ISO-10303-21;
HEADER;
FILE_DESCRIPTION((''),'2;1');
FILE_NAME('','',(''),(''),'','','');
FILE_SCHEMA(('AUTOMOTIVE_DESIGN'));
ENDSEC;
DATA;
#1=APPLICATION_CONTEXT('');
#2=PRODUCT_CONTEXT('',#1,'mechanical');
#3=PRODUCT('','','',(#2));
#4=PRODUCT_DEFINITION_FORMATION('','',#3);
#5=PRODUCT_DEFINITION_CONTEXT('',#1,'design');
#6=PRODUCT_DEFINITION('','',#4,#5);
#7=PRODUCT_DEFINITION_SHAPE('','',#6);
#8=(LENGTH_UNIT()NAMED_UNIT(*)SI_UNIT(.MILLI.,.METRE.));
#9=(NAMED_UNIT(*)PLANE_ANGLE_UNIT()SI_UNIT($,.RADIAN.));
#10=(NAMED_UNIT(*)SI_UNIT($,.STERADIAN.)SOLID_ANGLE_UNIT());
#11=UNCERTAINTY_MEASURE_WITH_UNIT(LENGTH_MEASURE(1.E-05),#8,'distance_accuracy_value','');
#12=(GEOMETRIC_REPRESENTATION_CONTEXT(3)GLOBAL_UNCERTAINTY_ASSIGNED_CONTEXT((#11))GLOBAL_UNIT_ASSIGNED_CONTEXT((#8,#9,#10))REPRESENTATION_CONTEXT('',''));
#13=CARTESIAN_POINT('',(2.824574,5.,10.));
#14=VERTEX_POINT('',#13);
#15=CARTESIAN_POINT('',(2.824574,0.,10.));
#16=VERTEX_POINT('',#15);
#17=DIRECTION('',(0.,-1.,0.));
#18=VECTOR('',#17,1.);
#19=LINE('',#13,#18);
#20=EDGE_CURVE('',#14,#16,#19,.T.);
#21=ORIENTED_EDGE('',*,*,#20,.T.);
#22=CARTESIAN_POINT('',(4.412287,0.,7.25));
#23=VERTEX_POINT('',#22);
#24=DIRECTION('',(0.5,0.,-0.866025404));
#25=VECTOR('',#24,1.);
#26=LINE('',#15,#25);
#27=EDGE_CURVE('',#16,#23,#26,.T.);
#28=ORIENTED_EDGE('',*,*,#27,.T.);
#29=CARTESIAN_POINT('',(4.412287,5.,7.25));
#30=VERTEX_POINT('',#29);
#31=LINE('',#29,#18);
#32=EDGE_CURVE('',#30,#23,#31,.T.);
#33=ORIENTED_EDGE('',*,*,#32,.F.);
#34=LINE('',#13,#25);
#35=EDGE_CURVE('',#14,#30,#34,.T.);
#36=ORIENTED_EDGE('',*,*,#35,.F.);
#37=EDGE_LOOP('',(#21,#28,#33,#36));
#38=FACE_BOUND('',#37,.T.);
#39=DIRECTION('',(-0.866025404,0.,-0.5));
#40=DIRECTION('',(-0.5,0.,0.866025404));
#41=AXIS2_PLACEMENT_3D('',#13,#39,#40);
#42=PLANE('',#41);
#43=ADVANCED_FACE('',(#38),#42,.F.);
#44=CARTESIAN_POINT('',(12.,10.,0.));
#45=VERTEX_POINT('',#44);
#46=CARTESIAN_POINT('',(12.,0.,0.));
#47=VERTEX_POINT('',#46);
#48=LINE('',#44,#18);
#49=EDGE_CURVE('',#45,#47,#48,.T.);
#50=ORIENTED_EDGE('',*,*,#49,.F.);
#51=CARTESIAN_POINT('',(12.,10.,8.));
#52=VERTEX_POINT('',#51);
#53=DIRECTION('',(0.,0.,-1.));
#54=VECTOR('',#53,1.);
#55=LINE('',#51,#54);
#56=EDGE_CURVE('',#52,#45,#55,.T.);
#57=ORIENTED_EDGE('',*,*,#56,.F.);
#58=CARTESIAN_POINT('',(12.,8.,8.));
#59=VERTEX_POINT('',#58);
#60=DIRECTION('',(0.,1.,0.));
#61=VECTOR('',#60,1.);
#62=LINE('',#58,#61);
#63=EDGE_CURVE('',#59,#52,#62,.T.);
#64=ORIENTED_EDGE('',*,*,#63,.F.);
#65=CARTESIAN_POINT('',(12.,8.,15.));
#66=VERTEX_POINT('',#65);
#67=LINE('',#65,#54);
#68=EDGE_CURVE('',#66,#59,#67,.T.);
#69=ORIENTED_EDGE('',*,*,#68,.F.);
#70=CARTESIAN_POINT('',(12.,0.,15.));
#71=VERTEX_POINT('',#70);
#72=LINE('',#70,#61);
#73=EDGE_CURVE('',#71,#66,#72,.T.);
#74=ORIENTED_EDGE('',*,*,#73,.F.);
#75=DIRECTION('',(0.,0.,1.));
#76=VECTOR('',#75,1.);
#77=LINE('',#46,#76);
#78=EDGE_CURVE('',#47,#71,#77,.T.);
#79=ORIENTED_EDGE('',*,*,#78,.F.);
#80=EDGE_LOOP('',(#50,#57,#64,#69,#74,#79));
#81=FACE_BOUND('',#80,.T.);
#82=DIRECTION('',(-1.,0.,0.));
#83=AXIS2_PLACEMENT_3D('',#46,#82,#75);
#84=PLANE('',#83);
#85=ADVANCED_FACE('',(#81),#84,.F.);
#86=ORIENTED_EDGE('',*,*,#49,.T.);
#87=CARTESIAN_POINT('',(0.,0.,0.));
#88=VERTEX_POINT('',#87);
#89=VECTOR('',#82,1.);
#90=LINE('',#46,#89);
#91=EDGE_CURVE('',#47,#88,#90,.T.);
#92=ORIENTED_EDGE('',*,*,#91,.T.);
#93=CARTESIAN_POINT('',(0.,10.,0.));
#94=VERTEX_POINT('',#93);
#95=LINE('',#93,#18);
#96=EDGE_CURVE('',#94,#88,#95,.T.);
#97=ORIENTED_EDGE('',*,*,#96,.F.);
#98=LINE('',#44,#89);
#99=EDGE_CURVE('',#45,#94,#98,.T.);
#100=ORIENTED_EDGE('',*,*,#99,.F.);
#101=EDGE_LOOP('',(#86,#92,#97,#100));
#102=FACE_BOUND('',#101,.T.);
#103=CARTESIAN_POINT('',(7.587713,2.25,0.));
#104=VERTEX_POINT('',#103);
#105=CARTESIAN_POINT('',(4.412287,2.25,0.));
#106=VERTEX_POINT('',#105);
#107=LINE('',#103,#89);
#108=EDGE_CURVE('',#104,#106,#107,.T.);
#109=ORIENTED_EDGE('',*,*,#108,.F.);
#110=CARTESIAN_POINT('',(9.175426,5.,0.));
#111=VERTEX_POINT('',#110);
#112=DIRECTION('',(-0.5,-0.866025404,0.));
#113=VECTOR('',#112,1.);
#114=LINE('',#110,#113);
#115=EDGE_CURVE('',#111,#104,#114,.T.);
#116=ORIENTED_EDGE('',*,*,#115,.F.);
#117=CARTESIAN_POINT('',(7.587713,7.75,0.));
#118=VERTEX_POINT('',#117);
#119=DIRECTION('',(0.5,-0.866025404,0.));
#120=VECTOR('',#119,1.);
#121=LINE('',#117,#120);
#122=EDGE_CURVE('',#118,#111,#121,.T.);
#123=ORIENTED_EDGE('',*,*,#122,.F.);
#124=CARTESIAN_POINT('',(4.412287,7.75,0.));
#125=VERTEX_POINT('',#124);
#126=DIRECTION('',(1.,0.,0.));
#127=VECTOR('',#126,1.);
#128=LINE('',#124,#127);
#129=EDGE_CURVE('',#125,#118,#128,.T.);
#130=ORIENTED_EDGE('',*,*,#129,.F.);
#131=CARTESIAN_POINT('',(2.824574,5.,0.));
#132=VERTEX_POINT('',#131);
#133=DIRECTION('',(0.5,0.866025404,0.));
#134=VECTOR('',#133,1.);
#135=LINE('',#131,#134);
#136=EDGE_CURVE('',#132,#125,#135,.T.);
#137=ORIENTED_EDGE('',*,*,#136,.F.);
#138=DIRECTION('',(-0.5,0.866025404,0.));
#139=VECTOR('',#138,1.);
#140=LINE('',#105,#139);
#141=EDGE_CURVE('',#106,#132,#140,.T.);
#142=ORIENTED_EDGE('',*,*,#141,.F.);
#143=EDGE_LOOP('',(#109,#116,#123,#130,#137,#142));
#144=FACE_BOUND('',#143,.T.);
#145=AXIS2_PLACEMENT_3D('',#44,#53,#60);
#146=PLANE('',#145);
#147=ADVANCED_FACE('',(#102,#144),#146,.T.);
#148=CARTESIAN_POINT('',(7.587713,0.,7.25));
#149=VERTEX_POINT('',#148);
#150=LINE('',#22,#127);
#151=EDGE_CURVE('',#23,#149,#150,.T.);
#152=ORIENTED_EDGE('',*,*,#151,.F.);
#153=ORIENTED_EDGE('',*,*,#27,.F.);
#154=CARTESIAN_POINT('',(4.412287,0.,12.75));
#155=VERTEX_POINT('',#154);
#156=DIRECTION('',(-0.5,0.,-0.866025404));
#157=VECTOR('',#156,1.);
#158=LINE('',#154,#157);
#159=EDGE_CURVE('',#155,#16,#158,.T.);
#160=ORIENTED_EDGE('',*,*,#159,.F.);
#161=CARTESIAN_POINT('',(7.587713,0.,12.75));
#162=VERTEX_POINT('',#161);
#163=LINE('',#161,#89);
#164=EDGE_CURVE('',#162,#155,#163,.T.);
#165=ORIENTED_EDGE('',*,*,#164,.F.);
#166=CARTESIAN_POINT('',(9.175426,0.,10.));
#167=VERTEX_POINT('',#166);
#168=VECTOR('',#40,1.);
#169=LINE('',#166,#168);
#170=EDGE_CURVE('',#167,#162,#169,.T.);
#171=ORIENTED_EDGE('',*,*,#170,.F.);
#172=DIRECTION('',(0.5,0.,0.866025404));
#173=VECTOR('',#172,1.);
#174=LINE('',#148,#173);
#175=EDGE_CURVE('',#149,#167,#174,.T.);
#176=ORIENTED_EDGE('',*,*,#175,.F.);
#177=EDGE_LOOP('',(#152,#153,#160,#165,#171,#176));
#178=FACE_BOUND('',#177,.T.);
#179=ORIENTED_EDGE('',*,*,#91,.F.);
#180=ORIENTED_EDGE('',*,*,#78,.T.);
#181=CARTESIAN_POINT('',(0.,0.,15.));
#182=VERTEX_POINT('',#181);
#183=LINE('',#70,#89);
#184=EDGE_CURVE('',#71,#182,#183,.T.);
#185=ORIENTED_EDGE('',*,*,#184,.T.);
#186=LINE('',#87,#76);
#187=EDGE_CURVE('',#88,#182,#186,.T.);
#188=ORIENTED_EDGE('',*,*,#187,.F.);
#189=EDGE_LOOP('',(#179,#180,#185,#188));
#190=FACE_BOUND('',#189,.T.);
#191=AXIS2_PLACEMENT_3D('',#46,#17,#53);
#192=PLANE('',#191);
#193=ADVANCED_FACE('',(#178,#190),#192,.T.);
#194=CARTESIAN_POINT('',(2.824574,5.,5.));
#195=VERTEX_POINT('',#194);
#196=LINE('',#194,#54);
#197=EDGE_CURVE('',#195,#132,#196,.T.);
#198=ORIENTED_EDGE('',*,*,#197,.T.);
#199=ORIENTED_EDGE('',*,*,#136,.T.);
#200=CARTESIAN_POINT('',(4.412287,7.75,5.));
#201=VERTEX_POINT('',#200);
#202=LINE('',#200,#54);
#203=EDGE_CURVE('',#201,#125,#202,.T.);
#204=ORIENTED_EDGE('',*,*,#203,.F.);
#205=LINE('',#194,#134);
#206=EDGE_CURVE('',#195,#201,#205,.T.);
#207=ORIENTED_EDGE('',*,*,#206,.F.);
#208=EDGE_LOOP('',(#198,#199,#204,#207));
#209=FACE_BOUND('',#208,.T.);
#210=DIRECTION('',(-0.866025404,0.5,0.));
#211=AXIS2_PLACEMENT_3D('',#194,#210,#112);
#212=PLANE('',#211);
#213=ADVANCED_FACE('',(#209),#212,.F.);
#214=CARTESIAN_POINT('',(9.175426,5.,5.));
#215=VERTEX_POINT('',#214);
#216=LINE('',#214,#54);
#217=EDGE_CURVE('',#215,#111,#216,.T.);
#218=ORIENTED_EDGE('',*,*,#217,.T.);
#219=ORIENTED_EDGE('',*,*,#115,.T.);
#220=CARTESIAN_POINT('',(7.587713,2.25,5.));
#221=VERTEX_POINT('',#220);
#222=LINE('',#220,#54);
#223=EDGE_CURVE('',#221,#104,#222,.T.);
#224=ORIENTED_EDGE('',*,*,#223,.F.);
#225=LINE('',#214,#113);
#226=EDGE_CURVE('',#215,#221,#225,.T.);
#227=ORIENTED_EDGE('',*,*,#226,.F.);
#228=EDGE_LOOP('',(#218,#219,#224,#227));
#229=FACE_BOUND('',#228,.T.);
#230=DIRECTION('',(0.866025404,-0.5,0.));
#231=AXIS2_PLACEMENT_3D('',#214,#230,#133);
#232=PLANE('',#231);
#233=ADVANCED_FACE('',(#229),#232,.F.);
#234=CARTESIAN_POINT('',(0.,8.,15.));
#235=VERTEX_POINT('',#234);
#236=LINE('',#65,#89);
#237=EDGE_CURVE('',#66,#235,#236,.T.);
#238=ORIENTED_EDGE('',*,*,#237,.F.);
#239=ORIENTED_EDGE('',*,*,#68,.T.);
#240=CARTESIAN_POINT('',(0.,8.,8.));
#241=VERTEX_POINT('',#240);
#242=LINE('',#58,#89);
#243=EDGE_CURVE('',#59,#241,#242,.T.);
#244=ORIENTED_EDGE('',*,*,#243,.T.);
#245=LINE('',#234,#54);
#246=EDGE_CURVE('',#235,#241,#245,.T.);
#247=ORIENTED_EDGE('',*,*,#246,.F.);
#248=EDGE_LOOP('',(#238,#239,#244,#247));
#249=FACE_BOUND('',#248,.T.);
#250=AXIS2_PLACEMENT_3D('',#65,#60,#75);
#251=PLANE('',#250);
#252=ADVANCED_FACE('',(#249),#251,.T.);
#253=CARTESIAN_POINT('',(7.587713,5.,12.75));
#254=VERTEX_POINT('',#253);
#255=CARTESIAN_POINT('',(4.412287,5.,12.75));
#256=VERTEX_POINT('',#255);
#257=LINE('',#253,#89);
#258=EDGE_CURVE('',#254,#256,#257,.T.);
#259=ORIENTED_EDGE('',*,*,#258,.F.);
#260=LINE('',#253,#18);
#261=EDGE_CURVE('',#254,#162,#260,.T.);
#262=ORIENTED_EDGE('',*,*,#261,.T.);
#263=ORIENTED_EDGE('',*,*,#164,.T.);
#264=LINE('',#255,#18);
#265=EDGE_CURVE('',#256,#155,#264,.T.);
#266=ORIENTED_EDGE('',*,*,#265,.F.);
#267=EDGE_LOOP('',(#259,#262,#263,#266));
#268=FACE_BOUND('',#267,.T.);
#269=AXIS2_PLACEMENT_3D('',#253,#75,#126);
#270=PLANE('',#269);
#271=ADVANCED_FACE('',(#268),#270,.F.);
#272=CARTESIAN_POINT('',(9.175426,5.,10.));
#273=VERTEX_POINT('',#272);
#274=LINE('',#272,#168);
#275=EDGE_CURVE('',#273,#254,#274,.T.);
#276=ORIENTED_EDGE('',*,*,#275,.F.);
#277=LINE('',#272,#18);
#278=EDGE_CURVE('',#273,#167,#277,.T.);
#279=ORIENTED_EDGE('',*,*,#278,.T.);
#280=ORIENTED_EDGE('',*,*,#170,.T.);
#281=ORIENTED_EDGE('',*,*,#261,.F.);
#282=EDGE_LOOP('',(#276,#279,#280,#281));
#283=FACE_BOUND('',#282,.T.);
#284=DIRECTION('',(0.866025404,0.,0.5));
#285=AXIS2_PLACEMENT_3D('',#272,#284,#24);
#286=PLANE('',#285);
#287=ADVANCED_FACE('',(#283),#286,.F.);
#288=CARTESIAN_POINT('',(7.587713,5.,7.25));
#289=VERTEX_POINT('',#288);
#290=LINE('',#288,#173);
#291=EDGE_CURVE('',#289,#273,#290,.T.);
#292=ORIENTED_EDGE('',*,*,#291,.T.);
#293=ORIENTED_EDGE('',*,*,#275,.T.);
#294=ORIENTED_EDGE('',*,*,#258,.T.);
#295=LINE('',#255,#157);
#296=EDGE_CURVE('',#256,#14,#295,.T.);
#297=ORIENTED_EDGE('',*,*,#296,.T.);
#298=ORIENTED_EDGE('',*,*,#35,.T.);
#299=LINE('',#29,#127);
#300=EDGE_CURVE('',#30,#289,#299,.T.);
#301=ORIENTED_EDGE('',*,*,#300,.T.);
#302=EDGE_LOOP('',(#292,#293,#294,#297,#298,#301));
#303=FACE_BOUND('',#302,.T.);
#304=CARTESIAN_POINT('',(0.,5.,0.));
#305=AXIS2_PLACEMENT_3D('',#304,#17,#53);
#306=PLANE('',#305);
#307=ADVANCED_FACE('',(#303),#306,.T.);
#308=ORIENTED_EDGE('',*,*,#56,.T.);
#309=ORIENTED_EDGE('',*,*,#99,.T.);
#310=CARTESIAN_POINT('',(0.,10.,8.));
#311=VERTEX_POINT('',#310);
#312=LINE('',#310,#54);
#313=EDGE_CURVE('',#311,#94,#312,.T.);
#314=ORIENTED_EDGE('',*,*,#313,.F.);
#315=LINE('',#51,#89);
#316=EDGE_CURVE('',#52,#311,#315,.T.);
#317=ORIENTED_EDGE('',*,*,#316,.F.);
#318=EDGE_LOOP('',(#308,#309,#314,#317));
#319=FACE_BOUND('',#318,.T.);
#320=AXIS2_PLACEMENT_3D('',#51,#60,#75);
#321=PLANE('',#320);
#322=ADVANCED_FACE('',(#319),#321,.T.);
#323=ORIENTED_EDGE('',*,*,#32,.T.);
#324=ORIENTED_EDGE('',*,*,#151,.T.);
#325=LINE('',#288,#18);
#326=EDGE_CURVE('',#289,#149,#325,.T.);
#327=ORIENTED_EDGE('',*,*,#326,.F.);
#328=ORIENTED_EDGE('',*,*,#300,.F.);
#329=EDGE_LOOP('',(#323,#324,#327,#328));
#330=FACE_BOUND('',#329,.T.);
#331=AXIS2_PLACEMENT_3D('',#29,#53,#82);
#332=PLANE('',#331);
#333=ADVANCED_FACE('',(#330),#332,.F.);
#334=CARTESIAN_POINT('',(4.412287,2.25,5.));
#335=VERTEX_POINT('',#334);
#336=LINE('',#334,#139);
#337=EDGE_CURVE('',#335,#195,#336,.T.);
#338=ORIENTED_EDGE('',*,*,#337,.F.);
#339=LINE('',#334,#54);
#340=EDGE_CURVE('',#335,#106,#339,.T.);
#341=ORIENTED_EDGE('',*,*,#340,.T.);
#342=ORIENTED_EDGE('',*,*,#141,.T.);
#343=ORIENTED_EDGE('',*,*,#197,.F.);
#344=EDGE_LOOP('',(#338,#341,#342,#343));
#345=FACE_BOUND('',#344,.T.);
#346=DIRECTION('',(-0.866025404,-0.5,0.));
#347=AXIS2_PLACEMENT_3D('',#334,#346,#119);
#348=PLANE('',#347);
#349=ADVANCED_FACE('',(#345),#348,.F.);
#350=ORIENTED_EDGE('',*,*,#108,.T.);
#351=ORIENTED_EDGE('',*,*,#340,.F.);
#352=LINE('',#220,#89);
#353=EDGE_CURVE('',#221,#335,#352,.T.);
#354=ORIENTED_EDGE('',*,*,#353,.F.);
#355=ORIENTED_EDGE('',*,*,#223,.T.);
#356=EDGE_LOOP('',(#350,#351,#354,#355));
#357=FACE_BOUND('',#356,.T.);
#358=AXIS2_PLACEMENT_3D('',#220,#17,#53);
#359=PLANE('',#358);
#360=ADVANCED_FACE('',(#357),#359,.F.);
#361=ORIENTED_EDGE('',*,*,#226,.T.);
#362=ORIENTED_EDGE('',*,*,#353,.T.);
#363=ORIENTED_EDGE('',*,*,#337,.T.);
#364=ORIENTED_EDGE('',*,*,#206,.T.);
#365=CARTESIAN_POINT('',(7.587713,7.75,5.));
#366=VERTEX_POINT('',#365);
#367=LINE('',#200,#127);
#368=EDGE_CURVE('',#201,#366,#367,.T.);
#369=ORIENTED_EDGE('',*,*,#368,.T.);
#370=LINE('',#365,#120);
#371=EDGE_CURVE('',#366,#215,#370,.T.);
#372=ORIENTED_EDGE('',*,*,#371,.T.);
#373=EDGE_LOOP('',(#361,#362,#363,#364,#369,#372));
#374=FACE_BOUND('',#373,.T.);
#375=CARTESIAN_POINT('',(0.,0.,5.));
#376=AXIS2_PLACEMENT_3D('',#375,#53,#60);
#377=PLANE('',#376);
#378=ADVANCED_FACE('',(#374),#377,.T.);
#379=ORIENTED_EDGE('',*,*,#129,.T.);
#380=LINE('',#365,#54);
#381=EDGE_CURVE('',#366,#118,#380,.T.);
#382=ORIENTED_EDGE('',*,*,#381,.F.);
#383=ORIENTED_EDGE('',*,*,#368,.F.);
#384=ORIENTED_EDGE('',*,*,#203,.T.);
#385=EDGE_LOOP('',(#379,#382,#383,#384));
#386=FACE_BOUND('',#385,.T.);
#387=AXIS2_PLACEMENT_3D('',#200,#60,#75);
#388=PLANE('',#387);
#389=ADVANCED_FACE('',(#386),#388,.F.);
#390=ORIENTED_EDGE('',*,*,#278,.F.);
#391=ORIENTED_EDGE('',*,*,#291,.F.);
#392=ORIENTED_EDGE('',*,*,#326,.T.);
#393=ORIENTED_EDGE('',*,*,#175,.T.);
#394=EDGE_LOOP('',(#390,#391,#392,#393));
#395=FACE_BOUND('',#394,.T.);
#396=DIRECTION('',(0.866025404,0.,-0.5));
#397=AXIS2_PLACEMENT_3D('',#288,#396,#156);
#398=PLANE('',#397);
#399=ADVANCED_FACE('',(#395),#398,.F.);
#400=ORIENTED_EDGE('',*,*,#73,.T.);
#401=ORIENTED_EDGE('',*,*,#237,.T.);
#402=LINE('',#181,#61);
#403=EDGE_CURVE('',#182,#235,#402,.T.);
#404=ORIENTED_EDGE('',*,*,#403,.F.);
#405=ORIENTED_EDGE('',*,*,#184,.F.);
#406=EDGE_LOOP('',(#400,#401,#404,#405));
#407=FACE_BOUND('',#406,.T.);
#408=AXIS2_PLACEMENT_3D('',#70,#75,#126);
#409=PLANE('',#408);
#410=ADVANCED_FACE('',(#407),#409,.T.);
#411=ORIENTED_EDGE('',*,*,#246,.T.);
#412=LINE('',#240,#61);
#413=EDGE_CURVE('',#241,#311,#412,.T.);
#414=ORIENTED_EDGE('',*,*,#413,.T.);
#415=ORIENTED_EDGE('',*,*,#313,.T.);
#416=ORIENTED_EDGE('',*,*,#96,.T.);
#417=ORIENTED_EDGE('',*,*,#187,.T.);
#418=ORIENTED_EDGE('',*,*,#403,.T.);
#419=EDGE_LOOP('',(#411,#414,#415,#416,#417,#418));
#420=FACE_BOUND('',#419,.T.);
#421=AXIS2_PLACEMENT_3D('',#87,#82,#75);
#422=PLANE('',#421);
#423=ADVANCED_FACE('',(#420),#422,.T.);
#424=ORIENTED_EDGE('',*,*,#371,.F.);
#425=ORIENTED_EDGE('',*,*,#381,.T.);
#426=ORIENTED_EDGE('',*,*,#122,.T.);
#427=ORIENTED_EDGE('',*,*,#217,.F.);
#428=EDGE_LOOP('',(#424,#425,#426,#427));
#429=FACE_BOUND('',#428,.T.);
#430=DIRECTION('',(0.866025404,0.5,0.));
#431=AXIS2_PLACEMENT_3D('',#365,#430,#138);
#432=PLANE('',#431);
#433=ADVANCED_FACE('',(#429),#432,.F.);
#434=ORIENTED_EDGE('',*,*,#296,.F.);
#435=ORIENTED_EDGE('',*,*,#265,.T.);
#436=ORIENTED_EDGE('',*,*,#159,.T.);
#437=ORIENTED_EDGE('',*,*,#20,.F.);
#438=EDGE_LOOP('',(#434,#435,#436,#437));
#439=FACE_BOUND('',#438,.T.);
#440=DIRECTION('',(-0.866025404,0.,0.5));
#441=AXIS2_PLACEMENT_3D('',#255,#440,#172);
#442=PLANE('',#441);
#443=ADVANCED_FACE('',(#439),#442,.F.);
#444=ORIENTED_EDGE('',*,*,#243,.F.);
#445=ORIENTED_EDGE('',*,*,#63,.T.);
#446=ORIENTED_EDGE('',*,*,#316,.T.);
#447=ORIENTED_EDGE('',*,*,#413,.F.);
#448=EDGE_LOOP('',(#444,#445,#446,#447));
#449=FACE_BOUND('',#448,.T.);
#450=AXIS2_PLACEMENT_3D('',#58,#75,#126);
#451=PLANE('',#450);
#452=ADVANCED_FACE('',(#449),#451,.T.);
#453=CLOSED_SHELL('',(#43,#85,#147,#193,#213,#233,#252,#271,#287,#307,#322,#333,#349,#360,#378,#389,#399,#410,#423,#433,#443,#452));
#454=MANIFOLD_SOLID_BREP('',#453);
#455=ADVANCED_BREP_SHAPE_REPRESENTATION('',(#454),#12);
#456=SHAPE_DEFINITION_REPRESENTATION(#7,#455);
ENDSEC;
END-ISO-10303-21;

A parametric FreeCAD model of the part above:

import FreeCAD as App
import Part
import Sketcher

V = App.Vector
Q = App.Units.Quantity


def add_polygon(sketch, points):
    """Adds a closed chain of lines whose ends are joined by coincident constraints."""
    first, n = sketch.GeometryCount, len(points)
    for a, b in zip(points, points[1:] + points[:1]):
        sketch.addGeometry(Part.LineSegment(App.Vector(*a, 0), App.Vector(*b, 0)), False)
    for i in range(n):
        sketch.addConstraint(Sketcher.Constraint("Coincident", first + i, 2, first + (i + 1) % n, 1))

doc = App.newDocument("Part")
body = doc.addObject("PartDesign::Body", "Body")

sketch1 = body.newObject("Sketcher::SketchObject", "Sketch")
sketch1.AttachmentSupport = (doc.getObject("YZ_Plane"), [""])
sketch1.MapMode = "FlatFace"
add_polygon(sketch1, [(0, 15), (0, 0), (10, 0), (10, 8), (8, 8), (8, 15)])
sketch1.addConstraint(Sketcher.Constraint("Vertical", 0))
sketch1.addConstraint(Sketcher.Constraint("Horizontal", 1))
sketch1.addConstraint(Sketcher.Constraint("Vertical", 2))
sketch1.addConstraint(Sketcher.Constraint("Horizontal", 3))
sketch1.addConstraint(Sketcher.Constraint("Vertical", 4))
sketch1.addConstraint(Sketcher.Constraint("Horizontal", 5))
sketch1.addConstraint(Sketcher.Constraint("Coincident", 0, 2, -1, 1))
sketch1.addConstraint(Sketcher.Constraint("Equal", 5, 2))
sketch1.addConstraint(Sketcher.Constraint("DistanceX", 1, 1, 1, 2, 10.0))
sketch1.addConstraint(Sketcher.Constraint("DistanceX", 3, 2, 3, 1, 2.0))
sketch1.addConstraint(Sketcher.Constraint("DistanceY", 0, 2, 0, 1, 15.0))
pad1 = body.newObject("PartDesign::Pad", "Pad")
pad1.Profile = sketch1
pad1.Length = 12

sketch2 = body.newObject("Sketcher::SketchObject", "Sketch001")
sketch2.AttachmentSupport = (doc.getObject("XY_Plane"), [""])
sketch2.MapMode = "FlatFace"
add_polygon(sketch2, [(4.412287, 7.75), (7.587713, 7.75), (9.175426, 5), (7.587713, 2.25), (4.412287, 2.25), (2.824574, 5)])
sketch2.addConstraint(Sketcher.Constraint("Horizontal", 0))
sketch2.addConstraint(Sketcher.Constraint("Horizontal", 3))
sketch2.addConstraint(Sketcher.Constraint("Parallel", 1, 4))
sketch2.addConstraint(Sketcher.Constraint("Parallel", 2, 5))
sketch2.addConstraint(Sketcher.Constraint("Horizontal", 1, 2, 4, 2))
sketch2.addConstraint(Sketcher.Constraint("Vertical", 0, 2, 2, 2))
sketch2.addConstraint(Sketcher.Constraint("Vertical", 3, 2, 5, 2))
sketch2.addConstraint(Sketcher.Constraint("Angle", 1, Q("-60 deg")))
sketch2.addConstraint(Sketcher.Constraint("DistanceY", -1, 1, 1, 2, 5.0))
sketch2.addConstraint(Sketcher.Constraint("DistanceY", 2, 2, 0, 2, 5.5))
sketch2.addConstraint(Sketcher.Constraint("DistanceX", 0, 1, 0, 2, 3.175426))
sketch2.addConstraint(Sketcher.Constraint("DistanceX", -1, 1, 0, 2, 7.587713))
pocket1 = body.newObject("PartDesign::Pocket", "Pocket")
pocket1.Profile = sketch2
pocket1.Length = 5
pocket1.Reversed = True

sketch3 = body.newObject("Sketcher::SketchObject", "Sketch002")
sketch3.AttachmentSupport = (doc.getObject("XZ_Plane"), [""])
sketch3.MapMode = "FlatFace"
add_polygon(sketch3, [(4.412287, 7.25), (7.587713, 7.25), (9.175426, 10), (7.587713, 12.75), (4.412287, 12.75), (2.824574, 10)])
sketch3.addConstraint(Sketcher.Constraint("Horizontal", 0))
sketch3.addConstraint(Sketcher.Constraint("Horizontal", 3))
sketch3.addConstraint(Sketcher.Constraint("Parallel", 1, 4))
sketch3.addConstraint(Sketcher.Constraint("Parallel", 2, 5))
sketch3.addConstraint(Sketcher.Constraint("Horizontal", 1, 2, 4, 2))
sketch3.addConstraint(Sketcher.Constraint("Vertical", 0, 2, 2, 2))
sketch3.addConstraint(Sketcher.Constraint("Vertical", 3, 2, 5, 2))
sketch3.addConstraint(Sketcher.Constraint("Angle", 1, Q("60 deg")))
sketch3.addConstraint(Sketcher.Constraint("DistanceY", -1, 1, 1, 2, 10.0))
sketch3.addConstraint(Sketcher.Constraint("DistanceY", 0, 2, 2, 2, 5.5))
sketch3.addConstraint(Sketcher.Constraint("DistanceX", 0, 1, 0, 2, 3.175426))
sketch3.addConstraint(Sketcher.Constraint("DistanceX", -1, 1, 0, 2, 7.587713))
pocket2 = body.newObject("PartDesign::Pocket", "Pocket001")
pocket2.Profile = sketch3
pocket2.Length = 5

doc.recompute()
